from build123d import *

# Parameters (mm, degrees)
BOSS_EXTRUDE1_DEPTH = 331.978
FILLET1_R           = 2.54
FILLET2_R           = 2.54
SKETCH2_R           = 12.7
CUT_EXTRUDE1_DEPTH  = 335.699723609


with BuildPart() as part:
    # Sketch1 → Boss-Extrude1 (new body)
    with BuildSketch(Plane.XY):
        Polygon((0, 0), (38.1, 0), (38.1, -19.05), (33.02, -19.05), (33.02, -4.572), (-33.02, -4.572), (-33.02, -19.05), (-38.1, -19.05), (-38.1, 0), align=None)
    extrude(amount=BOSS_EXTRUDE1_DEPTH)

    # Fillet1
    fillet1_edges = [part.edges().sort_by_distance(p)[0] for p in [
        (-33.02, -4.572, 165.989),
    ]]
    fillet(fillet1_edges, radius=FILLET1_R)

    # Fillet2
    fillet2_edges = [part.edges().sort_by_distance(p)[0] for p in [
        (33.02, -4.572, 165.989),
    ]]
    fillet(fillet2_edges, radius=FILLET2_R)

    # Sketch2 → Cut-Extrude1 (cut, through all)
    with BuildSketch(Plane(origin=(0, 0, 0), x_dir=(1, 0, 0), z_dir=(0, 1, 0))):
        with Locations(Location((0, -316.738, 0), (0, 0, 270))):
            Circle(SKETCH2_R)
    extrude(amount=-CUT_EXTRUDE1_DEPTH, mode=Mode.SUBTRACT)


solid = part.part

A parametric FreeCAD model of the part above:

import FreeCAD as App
import Part
import Sketcher
from FreeCAD import Vector
Q = App.Units.Quantity


def edges_at(feature, points):
    """Names of the edges that pass closest to the given points."""
    edges = feature.Shape.Edges
    near = lambda p: min(range(len(edges)), key=lambda i: edges[i].distToShape(Part.Vertex(*p))[0])
    return sorted({f"Edge{near(p) + 1}" for p in points})


def add_polygon(sketch, points):
    """Adds a closed chain of lines whose ends are joined by coincident constraints."""
    first, n = sketch.GeometryCount, len(points)
    for a, b in zip(points, points[1:] + points[:1]):
        sketch.addGeometry(Part.LineSegment(App.Vector(*a, 0), App.Vector(*b, 0)), False)
    for i in range(n):
        sketch.addConstraint(Sketcher.Constraint("Coincident", first + i, 2, first + (i + 1) % n, 1))

doc = App.newDocument("Part")
body = doc.addObject("PartDesign::Body", "Body")

sketch1 = body.newObject("Sketcher::SketchObject", "Sketch")
sketch1.AttachmentSupport = (doc.getObject("XY_Plane"), [""])
sketch1.MapMode = "FlatFace"
add_polygon(sketch1, [(38, 0), (-38, 0), (-38, -19), (-33, -19), (-33, -5), (33, -5), (33, -19), (38, -19)])
sketch1.addConstraint(Sketcher.Constraint("Horizontal", 0))
sketch1.addConstraint(Sketcher.Constraint("Vertical", 1))
sketch1.addConstraint(Sketcher.Constraint("Horizontal", 2))
sketch1.addConstraint(Sketcher.Constraint("Vertical", 3))
sketch1.addConstraint(Sketcher.Constraint("Horizontal", 4))
sketch1.addConstraint(Sketcher.Constraint("Vertical", 5))
sketch1.addConstraint(Sketcher.Constraint("Horizontal", 6))
sketch1.addConstraint(Sketcher.Constraint("Vertical", 7))
sketch1.addConstraint(Sketcher.Constraint("Symmetric", 0, 2, 7, 2, -1, 1))
sketch1.addConstraint(Sketcher.Constraint("Symmetric", 2, 2, 5, 2, -2))
sketch1.addConstraint(Sketcher.Constraint("DistanceX", 0, 2, 0, 1, Q("3 in")))
sketch1.addConstraint(Sketcher.Constraint("DistanceX", 2, 1, 2, 2, Q("0.2 in")))
sketch1.addConstraint(Sketcher.Constraint("DistanceY", 1, 2, 1, 1, Q("0.75 in")))
sketch1.addConstraint(Sketcher.Constraint("DistanceY", 3, 1, 3, 2, Q("0.57 in")))
pad1 = body.newObject("PartDesign::Pad", "Pad")
pad1.Profile = sketch1
pad1.Length = Q("13.07 in")
doc.recompute()

fillet = body.newObject("PartDesign::Fillet", "Fillet")
fillet.Base = (pad1, edges_at(pad1, [(-33.02, -4.572, 165.989)]))
fillet.Radius = Q("0.1 in")
doc.recompute()

fillet2 = body.newObject("PartDesign::Fillet", "Fillet001")
fillet2.Base = (fillet, edges_at(fillet, [(33.02, -4.572, 165.989)]))
fillet2.Radius = Q("0.1 in")

sketch2 = body.newObject("Sketcher::SketchObject", "Sketch001")
sketch2.AttachmentSupport = (doc.getObject("XZ_Plane"), [""])
sketch2.MapMode = "FlatFace"
sketch2.addGeometry(Part.Circle(Vector(0, 317, 0), Vector(0, 0, 1), 13), False)
sketch2.addConstraint(Sketcher.Constraint("PointOnObject", 0, 3, -2))
sketch2.addConstraint(Sketcher.Constraint("Diameter", 0, Q("1 in")))
sketch2.addConstraint(Sketcher.Constraint("DistanceY", -1, 1, 0, 3, Q("12.47 in")))
pocket1 = body.newObject("PartDesign::Pocket", "Pocket")
pocket1.Profile = sketch2
pocket1.Type = "ThroughAll"
pocket1.Reversed = True

doc.recompute()
